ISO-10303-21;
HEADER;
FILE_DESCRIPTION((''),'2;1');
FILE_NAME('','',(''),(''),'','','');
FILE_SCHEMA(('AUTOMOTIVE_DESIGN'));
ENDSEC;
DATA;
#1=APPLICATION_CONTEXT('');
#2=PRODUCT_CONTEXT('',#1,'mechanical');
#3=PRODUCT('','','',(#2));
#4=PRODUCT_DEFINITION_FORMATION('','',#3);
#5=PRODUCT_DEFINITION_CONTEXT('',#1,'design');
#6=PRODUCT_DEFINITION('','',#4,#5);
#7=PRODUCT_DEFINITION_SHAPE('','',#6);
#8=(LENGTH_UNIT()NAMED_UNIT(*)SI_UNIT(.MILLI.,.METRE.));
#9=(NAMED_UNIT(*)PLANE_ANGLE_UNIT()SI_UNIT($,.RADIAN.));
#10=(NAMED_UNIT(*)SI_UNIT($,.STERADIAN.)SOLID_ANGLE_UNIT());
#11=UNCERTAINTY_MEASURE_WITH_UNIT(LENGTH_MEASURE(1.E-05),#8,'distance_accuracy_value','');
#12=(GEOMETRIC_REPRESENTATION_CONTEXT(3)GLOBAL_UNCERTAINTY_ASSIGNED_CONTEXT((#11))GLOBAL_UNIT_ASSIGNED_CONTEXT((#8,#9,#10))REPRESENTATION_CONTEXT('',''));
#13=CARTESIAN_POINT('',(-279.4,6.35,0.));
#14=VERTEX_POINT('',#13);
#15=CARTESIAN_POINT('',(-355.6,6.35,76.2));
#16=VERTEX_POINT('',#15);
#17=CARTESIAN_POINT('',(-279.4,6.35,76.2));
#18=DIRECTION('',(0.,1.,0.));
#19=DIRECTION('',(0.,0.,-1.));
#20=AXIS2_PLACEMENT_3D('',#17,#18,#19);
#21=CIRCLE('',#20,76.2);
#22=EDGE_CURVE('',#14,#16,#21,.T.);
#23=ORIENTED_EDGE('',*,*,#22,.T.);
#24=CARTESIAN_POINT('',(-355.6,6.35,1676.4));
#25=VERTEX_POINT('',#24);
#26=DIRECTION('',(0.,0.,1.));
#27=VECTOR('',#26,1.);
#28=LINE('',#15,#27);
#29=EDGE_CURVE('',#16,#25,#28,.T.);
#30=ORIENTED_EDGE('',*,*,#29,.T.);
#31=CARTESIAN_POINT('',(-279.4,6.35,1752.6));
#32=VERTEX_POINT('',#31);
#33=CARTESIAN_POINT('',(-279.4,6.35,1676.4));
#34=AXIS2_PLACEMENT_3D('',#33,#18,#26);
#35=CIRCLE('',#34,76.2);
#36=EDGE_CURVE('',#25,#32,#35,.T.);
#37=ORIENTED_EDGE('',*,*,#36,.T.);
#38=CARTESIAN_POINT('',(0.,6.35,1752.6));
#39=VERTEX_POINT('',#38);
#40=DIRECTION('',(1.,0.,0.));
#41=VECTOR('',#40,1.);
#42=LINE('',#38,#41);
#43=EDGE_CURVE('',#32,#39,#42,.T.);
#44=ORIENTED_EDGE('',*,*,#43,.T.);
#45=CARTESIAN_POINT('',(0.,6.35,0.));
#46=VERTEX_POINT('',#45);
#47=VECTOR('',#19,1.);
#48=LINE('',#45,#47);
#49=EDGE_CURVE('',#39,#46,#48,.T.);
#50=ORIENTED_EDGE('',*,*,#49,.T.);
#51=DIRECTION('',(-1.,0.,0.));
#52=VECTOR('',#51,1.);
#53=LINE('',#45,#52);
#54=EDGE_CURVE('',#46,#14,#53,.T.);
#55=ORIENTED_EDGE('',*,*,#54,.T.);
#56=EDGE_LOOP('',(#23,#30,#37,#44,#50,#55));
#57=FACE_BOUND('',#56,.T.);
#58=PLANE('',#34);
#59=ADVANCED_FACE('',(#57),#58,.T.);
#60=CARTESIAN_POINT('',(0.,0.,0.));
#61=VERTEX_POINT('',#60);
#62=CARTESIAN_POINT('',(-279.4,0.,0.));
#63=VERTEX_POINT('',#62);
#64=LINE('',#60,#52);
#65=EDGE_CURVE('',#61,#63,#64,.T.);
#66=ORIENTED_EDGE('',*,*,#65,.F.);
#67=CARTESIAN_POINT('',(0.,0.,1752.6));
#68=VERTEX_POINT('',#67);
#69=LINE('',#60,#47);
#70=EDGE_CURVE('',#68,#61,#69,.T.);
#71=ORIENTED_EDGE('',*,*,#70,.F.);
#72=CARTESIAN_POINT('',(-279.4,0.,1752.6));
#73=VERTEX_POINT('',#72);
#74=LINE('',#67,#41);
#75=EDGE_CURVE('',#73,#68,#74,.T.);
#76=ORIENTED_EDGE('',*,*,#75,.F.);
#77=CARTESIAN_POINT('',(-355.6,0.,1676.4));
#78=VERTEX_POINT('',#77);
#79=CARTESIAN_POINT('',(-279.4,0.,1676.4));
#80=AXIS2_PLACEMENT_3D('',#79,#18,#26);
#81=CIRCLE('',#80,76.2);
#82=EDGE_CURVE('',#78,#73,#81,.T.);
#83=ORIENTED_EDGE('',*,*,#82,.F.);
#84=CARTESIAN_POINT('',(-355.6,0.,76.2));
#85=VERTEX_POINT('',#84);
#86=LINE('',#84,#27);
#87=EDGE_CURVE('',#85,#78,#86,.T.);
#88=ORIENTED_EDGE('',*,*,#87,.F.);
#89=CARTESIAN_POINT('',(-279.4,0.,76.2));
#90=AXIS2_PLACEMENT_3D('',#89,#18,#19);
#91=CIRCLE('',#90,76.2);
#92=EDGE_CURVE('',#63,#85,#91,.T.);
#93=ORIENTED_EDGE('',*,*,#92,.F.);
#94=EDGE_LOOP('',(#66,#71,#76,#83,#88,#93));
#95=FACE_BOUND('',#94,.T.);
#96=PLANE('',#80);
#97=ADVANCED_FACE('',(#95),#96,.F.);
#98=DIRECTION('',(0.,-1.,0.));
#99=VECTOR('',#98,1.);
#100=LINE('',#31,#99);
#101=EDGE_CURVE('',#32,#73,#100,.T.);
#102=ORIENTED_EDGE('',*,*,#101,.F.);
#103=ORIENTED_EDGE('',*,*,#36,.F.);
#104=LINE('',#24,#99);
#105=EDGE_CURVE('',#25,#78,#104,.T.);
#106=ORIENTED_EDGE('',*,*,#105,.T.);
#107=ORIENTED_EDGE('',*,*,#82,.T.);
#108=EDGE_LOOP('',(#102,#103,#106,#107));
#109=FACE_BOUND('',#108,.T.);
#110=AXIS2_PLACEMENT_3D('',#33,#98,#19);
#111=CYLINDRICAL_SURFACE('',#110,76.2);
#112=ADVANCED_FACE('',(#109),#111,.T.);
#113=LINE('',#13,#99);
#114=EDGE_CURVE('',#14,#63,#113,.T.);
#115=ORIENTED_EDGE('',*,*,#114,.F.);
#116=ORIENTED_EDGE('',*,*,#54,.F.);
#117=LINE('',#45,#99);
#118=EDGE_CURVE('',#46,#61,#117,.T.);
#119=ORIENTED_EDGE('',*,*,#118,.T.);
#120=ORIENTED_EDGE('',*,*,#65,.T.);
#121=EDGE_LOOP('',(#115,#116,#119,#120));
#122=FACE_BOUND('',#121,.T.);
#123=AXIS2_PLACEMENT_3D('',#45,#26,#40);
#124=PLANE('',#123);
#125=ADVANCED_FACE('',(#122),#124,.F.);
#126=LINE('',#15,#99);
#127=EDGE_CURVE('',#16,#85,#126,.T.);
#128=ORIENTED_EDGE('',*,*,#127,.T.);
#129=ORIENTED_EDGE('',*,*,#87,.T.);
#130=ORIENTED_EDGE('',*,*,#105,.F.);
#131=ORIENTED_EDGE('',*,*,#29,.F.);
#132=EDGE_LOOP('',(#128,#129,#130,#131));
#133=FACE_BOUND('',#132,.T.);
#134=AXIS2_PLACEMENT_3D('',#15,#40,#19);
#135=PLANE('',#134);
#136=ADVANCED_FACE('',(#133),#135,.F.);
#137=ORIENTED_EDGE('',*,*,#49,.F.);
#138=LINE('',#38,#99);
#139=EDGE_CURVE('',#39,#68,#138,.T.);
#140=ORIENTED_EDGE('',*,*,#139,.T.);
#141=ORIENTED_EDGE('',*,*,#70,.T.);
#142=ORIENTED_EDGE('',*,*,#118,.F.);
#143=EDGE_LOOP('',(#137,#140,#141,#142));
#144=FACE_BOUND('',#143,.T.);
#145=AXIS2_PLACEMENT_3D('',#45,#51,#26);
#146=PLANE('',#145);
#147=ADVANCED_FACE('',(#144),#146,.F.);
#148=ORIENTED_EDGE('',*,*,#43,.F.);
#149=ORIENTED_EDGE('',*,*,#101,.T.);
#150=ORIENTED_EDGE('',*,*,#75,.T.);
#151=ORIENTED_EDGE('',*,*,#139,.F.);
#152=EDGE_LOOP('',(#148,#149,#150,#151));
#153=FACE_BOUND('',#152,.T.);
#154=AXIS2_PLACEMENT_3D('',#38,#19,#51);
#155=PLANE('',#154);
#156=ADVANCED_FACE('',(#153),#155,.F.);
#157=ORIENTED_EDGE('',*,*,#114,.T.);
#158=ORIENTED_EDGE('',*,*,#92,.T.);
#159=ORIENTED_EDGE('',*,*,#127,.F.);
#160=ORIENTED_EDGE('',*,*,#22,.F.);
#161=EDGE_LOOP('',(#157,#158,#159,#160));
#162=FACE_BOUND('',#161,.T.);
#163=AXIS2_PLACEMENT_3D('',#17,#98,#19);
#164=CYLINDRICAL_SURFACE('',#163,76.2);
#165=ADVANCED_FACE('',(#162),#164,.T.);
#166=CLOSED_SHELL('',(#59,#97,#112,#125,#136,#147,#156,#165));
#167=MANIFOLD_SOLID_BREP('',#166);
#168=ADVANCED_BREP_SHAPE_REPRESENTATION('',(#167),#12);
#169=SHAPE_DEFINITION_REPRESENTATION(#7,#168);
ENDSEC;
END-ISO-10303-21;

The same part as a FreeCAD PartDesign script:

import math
import FreeCAD as App
import Part
import Sketcher

V = App.Vector
Q = App.Units.Quantity

doc = App.newDocument("Part")
body = doc.addObject("PartDesign::Body", "Body")

# Sketch on XZ plane
sketch1 = body.newObject("Sketcher::SketchObject", "Sketch")
sketch1.AttachmentSupport = (doc.getObject("XZ_Plane"), [""])
sketch1.MapMode = "FlatFace"
sketch1.addGeometry(Part.LineSegment(V(0, 0, 0), V(-279.4, 0, 0)), False)
sketch1.addGeometry(Part.ArcOfCircle(Part.Circle(V(-279.4, 76.2, 0), V(0, 0, 1), 76.2), math.radians(-180), math.radians(-90)), False)
sketch1.addGeometry(Part.LineSegment(V(-355.6, 76.2, 0), V(-355.6, 1676.4, 0)), False)
sketch1.addGeometry(Part.ArcOfCircle(Part.Circle(V(-279.4, 1676.4, 0), V(0, 0, 1), 76.2), math.radians(90), math.radians(180)), False)
sketch1.addGeometry(Part.LineSegment(V(-279.4, 1752.6, 0), V(0, 1752.6, 0)), False)
sketch1.addGeometry(Part.LineSegment(V(0, 1752.6, 0), V(0, 0, 0)), False)
sketch1.addConstraint(Sketcher.Constraint("Tangent", 0, 2, 1, 2))
sketch1.addConstraint(Sketcher.Constraint("Tangent", 1, 1, 2, 1))
sketch1.addConstraint(Sketcher.Constraint("Tangent", 2, 2, 3, 2))
sketch1.addConstraint(Sketcher.Constraint("Tangent", 3, 1, 4, 1))
sketch1.addConstraint(Sketcher.Constraint("Coincident", 4, 2, 5, 1))
sketch1.addConstraint(Sketcher.Constraint("Coincident", 5, 2, 0, 1))
sketch1.addConstraint(Sketcher.Constraint("Horizontal", 0))
sketch1.addConstraint(Sketcher.Constraint("Vertical", 2))
sketch1.addConstraint(Sketcher.Constraint("Horizontal", 4))
sketch1.addConstraint(Sketcher.Constraint("Vertical", 5))
sketch1.addConstraint(Sketcher.Constraint("Coincident", 5, 2, -1, 1))
sketch1.addConstraint(Sketcher.Constraint("Equal", 1, 3))
sketch1.addConstraint(Sketcher.Constraint("Radius", 1, Q("3 in")))
sketch1.addConstraint(Sketcher.Constraint("DistanceX", 0, 2, 0, 1, Q("11 in")))
sketch1.addConstraint(Sketcher.Constraint("DistanceY", 2, 1, 2, 2, Q("63 in")))
pad1 = body.newObject("PartDesign::Pad", "Pad")
pad1.Profile = sketch1
pad1.Length = Q("0.25 in")
pad1.Reversed = True

doc.recompute()
